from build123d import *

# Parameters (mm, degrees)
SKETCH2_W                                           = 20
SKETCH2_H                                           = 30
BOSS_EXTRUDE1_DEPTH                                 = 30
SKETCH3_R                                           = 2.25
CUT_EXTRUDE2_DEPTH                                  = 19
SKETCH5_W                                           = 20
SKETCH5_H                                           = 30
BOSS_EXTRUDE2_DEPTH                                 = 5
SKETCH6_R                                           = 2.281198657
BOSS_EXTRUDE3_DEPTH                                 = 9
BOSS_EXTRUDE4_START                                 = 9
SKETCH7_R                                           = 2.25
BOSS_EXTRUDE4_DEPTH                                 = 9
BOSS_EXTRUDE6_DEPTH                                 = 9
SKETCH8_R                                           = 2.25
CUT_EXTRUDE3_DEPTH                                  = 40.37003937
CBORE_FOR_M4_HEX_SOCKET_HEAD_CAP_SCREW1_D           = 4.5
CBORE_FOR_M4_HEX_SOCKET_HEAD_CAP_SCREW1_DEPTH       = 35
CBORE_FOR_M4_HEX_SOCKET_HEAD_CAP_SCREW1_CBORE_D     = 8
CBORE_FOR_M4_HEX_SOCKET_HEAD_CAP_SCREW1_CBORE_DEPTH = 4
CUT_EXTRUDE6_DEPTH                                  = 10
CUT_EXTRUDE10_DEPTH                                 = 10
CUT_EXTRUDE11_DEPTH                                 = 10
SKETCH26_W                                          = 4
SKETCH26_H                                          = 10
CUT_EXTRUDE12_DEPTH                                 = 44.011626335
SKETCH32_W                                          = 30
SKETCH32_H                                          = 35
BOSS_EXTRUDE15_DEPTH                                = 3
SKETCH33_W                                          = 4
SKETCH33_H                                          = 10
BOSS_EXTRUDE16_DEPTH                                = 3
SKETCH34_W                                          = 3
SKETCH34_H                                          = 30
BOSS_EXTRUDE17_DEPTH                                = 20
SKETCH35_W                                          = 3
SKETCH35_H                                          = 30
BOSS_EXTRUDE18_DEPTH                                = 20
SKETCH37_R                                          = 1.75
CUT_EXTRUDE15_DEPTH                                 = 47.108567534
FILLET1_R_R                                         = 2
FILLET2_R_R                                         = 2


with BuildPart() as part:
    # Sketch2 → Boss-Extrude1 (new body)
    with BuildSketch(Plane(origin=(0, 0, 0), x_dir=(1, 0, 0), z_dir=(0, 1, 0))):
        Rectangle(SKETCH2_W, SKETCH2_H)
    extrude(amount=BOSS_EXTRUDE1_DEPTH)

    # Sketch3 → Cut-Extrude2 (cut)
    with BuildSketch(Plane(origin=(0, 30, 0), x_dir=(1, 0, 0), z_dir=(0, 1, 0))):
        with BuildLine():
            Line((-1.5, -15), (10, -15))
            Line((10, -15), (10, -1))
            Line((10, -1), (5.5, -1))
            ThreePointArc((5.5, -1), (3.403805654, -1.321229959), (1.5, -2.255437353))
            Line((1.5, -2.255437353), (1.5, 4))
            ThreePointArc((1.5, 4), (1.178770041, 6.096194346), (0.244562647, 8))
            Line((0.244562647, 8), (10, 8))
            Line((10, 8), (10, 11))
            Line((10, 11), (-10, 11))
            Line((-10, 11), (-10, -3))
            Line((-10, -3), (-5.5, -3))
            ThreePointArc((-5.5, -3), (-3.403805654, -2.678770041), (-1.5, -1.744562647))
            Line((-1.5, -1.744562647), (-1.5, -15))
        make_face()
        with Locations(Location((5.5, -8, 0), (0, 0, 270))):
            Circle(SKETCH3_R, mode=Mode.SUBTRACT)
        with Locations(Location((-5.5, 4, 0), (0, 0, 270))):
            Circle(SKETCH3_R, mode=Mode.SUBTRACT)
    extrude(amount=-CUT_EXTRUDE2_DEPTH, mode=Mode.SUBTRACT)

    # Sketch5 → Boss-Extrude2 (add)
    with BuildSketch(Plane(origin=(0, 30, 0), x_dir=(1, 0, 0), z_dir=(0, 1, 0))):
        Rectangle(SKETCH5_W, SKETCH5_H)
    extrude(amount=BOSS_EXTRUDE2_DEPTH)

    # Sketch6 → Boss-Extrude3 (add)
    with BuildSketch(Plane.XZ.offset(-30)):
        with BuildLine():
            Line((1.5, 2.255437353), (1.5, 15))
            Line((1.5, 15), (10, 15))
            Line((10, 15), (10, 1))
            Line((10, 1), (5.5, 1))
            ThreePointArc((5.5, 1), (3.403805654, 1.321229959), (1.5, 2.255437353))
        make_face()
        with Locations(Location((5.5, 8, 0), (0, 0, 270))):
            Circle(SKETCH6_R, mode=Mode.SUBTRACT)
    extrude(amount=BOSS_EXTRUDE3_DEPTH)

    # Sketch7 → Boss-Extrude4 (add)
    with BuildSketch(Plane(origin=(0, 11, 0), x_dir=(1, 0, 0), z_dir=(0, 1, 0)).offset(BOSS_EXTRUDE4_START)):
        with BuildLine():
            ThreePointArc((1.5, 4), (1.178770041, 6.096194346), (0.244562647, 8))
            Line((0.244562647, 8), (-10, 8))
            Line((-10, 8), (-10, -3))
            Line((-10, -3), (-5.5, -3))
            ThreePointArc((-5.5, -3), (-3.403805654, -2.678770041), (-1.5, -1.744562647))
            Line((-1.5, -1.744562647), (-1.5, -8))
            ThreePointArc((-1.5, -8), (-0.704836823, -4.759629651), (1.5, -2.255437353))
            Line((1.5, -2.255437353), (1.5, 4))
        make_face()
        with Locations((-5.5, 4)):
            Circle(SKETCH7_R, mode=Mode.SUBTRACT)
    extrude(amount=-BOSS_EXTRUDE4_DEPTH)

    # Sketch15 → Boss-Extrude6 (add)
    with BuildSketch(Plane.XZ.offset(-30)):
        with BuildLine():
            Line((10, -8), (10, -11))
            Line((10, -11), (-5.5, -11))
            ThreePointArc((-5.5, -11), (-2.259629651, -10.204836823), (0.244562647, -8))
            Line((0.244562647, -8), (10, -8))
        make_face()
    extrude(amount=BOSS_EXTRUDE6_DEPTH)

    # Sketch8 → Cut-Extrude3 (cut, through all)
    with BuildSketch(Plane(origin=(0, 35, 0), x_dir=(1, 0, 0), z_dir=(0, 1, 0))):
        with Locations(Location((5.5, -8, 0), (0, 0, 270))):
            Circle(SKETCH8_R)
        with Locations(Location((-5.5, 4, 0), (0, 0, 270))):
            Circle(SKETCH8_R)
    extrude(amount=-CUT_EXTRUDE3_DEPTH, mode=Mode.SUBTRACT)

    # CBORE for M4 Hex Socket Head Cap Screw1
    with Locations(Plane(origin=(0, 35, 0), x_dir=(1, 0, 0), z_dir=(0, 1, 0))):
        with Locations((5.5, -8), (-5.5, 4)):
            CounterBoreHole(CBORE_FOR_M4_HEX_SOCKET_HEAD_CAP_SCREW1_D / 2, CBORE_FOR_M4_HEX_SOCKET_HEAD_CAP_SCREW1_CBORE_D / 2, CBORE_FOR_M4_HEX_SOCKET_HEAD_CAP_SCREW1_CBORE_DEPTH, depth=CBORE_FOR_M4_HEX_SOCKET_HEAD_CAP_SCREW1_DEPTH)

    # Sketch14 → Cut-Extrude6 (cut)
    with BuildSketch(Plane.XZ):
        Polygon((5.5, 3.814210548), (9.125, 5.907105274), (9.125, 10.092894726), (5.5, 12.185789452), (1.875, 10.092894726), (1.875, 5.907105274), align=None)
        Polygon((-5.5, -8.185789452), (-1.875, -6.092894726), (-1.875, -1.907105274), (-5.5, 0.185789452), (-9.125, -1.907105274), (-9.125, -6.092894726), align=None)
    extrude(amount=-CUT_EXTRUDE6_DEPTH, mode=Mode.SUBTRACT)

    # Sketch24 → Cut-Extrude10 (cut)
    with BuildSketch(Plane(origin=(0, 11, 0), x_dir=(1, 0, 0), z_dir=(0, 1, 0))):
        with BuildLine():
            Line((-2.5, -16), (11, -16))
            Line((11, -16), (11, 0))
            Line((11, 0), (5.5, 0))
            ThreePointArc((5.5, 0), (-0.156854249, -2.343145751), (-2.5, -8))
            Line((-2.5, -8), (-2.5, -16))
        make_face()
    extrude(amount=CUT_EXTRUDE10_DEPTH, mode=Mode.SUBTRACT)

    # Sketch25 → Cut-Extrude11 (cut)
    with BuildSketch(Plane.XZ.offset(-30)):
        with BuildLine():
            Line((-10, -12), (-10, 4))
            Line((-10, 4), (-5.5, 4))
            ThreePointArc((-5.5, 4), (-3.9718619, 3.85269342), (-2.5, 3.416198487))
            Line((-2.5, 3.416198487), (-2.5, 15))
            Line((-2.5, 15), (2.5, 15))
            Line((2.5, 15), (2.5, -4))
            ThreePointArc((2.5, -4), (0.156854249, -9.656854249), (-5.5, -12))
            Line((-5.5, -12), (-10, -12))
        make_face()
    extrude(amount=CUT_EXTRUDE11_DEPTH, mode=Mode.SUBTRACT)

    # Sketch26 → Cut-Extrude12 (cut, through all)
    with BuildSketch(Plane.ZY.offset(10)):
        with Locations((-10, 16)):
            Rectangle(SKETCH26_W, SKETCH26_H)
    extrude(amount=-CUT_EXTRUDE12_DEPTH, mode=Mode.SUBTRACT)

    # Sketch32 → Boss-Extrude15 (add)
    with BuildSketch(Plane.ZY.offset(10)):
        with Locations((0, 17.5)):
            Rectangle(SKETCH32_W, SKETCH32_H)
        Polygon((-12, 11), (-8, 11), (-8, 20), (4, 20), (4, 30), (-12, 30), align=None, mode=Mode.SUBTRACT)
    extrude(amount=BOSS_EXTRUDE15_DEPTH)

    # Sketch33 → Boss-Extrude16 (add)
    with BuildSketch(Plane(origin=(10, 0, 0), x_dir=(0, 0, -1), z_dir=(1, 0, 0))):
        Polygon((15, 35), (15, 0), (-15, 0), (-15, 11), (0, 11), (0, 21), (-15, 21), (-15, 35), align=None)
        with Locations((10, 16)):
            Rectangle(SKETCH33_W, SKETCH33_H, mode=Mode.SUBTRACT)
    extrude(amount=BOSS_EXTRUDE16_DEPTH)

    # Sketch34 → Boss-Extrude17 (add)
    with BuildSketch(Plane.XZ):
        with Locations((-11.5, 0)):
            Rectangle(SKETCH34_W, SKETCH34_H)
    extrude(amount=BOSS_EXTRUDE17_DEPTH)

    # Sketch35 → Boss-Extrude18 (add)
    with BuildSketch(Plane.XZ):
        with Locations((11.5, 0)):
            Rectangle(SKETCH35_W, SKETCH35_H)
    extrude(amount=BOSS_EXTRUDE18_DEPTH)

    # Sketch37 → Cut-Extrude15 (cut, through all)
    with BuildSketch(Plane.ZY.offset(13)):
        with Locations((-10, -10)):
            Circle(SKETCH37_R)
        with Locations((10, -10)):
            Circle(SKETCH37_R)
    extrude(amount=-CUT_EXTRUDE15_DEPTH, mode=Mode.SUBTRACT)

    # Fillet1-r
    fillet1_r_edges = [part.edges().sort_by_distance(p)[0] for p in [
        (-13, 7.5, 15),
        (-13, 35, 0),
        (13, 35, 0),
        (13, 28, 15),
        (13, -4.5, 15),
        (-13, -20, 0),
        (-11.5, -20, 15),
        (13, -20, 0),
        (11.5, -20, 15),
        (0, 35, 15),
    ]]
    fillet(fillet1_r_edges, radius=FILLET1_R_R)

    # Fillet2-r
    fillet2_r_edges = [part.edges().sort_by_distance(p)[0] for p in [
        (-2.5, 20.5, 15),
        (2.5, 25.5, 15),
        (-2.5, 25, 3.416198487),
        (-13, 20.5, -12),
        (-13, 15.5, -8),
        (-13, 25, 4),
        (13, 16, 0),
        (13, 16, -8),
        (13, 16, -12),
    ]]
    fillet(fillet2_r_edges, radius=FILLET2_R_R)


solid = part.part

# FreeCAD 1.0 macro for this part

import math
import FreeCAD as App
import Part
import Sketcher

V = App.Vector
Q = App.Units.Quantity


def edges_at(feature, points):
    """Names of the edges that pass closest to the given points."""
    edges = feature.Shape.Edges
    near = lambda p: min(range(len(edges)), key=lambda i: edges[i].distToShape(Part.Vertex(*p))[0])
    return sorted({f"Edge{near(p) + 1}" for p in points})

doc = App.newDocument("Part")
body = doc.addObject("PartDesign::Body", "Body")

# Sketch on XZ plane
sketch1 = body.newObject("Sketcher::SketchObject", "Sketch")
sketch1.AttachmentSupport = (doc.getObject("XZ_Plane"), [""])
sketch1.MapMode = "FlatFace"
sketch1.addGeometry(Part.LineSegment(V(-10, -15, 0), V(-10, 15, 0)), False)
sketch1.addGeometry(Part.LineSegment(V(-10, 15, 0), V(10, 15, 0)), False)
sketch1.addGeometry(Part.LineSegment(V(10, 15, 0), V(10, -15, 0)), False)
sketch1.addGeometry(Part.LineSegment(V(10, -15, 0), V(-10, -15, 0)), False)
sketch1.addConstraint(Sketcher.Constraint("Coincident", 0, 2, 1, 1))
sketch1.addConstraint(Sketcher.Constraint("Coincident", 1, 2, 2, 1))
sketch1.addConstraint(Sketcher.Constraint("Coincident", 2, 2, 3, 1))
sketch1.addConstraint(Sketcher.Constraint("Coincident", 3, 2, 0, 1))
sketch1.addConstraint(Sketcher.Constraint("Vertical", 0))
sketch1.addConstraint(Sketcher.Constraint("Horizontal", 1))
sketch1.addConstraint(Sketcher.Constraint("Vertical", 2))
sketch1.addConstraint(Sketcher.Constraint("Horizontal", 3))
sketch1.addConstraint(Sketcher.Constraint("Symmetric", 0, 2, 2, 2, -1, 1))
sketch1.addConstraint(Sketcher.Constraint("DistanceX", 1, 1, 1, 2, Q("20 mm")))
sketch1.addConstraint(Sketcher.Constraint("DistanceY", 0, 1, 0, 2, Q("30 mm")))
pad1 = body.newObject("PartDesign::Pad", "Pad")
pad1.Profile = sketch1
pad1.Length = 30
pad1.Reversed = True

# Sketch on XZ plane
sketch2 = body.newObject("Sketcher::SketchObject", "Sketch001")
sketch2.AttachmentSupport = (doc.getObject("XZ_Plane"), [""])
sketch2.MapMode = "FlatFace"
sketch2.AttachmentOffset = App.Placement(V(0, 0, -30), App.Rotation())
sketch2.addGeometry(Part.LineSegment(V(-1.5, 15, 0), V(10, 15, 0)), False)
sketch2.addGeometry(Part.LineSegment(V(10, 15, 0), V(10, 1, 0)), False)
sketch2.addGeometry(Part.LineSegment(V(10, 1, 0), V(5.5, 1, 0)), False)
sketch2.addGeometry(Part.ArcOfCircle(Part.Circle(V(5.5, 8, 0), V(0, 0, 1), 7), math.radians(-125), math.radians(-90)), False)
sketch2.addGeometry(Part.LineSegment(V(1.5, 2.3, 0), V(1.5, -4, 0)), False)
sketch2.addGeometry(Part.ArcOfCircle(Part.Circle(V(-5.5, -4, 0), V(0, 0, 1), 7), math.radians(-35), math.radians(0)), False)
sketch2.addGeometry(Part.LineSegment(V(0.2, -8, 0), V(10, -8, 0)), False)
sketch2.addGeometry(Part.LineSegment(V(10, -8, 0), V(10, -11, 0)), False)
sketch2.addGeometry(Part.LineSegment(V(10, -11, 0), V(-10, -11, 0)), False)
sketch2.addGeometry(Part.LineSegment(V(-10, -11, 0), V(-10, 3, 0)), False)
sketch2.addGeometry(Part.LineSegment(V(-10, 3, 0), V(-5.5, 3, 0)), False)
sketch2.addGeometry(Part.ArcOfCircle(Part.Circle(V(-5.5, -4, 0), V(0, 0, 1), 7), math.radians(55), math.radians(90)), False)
sketch2.addGeometry(Part.LineSegment(V(-1.5, 1.7, 0), V(-1.5, 15, 0)), False)
sketch2.addGeometry(Part.Circle(V(5.5, 8, 0), V(0, 0, 1), 2.2), False)
sketch2.addGeometry(Part.Circle(V(-5.5, -4, 0), V(0, 0, 1), 2.2), False)
sketch2.addConstraint(Sketcher.Constraint("Coincident", 0, 2, 1, 1))
sketch2.addConstraint(Sketcher.Constraint("Coincident", 1, 2, 2, 1))
sketch2.addConstraint(Sketcher.Constraint("Tangent", 2, 2, 3, 2))
sketch2.addConstraint(Sketcher.Constraint("Coincident", 3, 1, 4, 1))
sketch2.addConstraint(Sketcher.Constraint("Tangent", 4, 2, 5, 2))
sketch2.addConstraint(Sketcher.Constraint("Coincident", 5, 1, 6, 1))
sketch2.addConstraint(Sketcher.Constraint("Coincident", 6, 2, 7, 1))
sketch2.addConstraint(Sketcher.Constraint("Coincident", 7, 2, 8, 1))
sketch2.addConstraint(Sketcher.Constraint("Coincident", 8, 2, 9, 1))
sketch2.addConstraint(Sketcher.Constraint("Coincident", 9, 2, 10, 1))
sketch2.addConstraint(Sketcher.Constraint("Tangent", 10, 2, 11, 2))
sketch2.addConstraint(Sketcher.Constraint("Coincident", 11, 1, 12, 1))
sketch2.addConstraint(Sketcher.Constraint("Coincident", 12, 2, 0, 1))
sketch2.addConstraint(Sketcher.Constraint("Horizontal", 0))
sketch2.addConstraint(Sketcher.Constraint("Vertical", 1))
sketch2.addConstraint(Sketcher.Constraint("Horizontal", 2))
sketch2.addConstraint(Sketcher.Constraint("Vertical", 4))
sketch2.addConstraint(Sketcher.Constraint("Horizontal", 6))
sketch2.addConstraint(Sketcher.Constraint("Vertical", 7))
sketch2.addConstraint(Sketcher.Constraint("Horizontal", 8))
sketch2.addConstraint(Sketcher.Constraint("Vertical", 9))
sketch2.addConstraint(Sketcher.Constraint("Horizontal", 10))
sketch2.addConstraint(Sketcher.Constraint("Vertical", 12))
sketch2.addConstraint(Sketcher.Constraint("Coincident", 11, 3, 5, 3))
sketch2.addConstraint(Sketcher.Constraint("Coincident", 13, 3, 3, 3))
sketch2.addConstraint(Sketcher.Constraint("Coincident", 14, 3, 5, 3))
sketch2.addConstraint(Sketcher.Constraint("Equal", 3, 5))
sketch2.addConstraint(Sketcher.Constraint("Equal", 5, 11))
sketch2.addConstraint(Sketcher.Constraint("Equal", 13, 14))
sketch2.addConstraint(Sketcher.Constraint("Vertical", 1, 2, 6, 2))
sketch2.addConstraint(Sketcher.Constraint("Equal", 2, 10))
sketch2.addConstraint(Sketcher.Constraint("Equal", 1, 9))
sketch2.addConstraint(Sketcher.Constraint("Radius", 3, Q("7 mm")))
sketch2.addConstraint(Sketcher.Constraint("Diameter", 13, Q("4.5 mm")))
sketch2.addConstraint(Sketcher.Constraint("DistanceX", 8, 2, 8, 1, Q("20 mm")))
sketch2.addConstraint(Sketcher.Constraint("DistanceY", 1, 2, 1, 1, Q("14 mm")))
sketch2.addConstraint(Sketcher.Constraint("DistanceY", 7, 2, 7, 1, Q("3 mm")))
sketch2.addConstraint(Sketcher.Constraint("DistanceX", 0, 1, 0, 2, Q("11.5 mm")))
sketch2.addConstraint(Sketcher.Constraint("DistanceX", 2, 2, 2, 1, Q("4.5 mm")))
sketch2.addConstraint(Sketcher.Constraint("DistanceY", -1, 1, 3, 3, Q("8 mm")))
sketch2.addConstraint(Sketcher.Constraint("DistanceY", 5, 3, -1, 1, Q("4 mm")))
sketch2.addConstraint(Sketcher.Constraint("DistanceX", -1, 1, 0, 2, Q("10 mm")))
pocket1 = body.newObject("PartDesign::Pocket", "Pocket")
pocket1.Profile = sketch2
pocket1.Length = 19
pocket1.Reversed = True

# Sketch on XZ plane
sketch3 = body.newObject("Sketcher::SketchObject", "Sketch002")
sketch3.AttachmentSupport = (doc.getObject("XZ_Plane"), [""])
sketch3.MapMode = "FlatFace"
sketch3.AttachmentOffset = App.Placement(V(0, 0, -30), App.Rotation())
sketch3.addGeometry(Part.LineSegment(V(-10, -15, 0), V(-10, 15, 0)), False)
sketch3.addGeometry(Part.LineSegment(V(-10, 15, 0), V(10, 15, 0)), False)
sketch3.addGeometry(Part.LineSegment(V(10, 15, 0), V(10, -15, 0)), False)
sketch3.addGeometry(Part.LineSegment(V(10, -15, 0), V(-10, -15, 0)), False)
sketch3.addConstraint(Sketcher.Constraint("Coincident", 0, 2, 1, 1))
sketch3.addConstraint(Sketcher.Constraint("Coincident", 1, 2, 2, 1))
sketch3.addConstraint(Sketcher.Constraint("Coincident", 2, 2, 3, 1))
sketch3.addConstraint(Sketcher.Constraint("Coincident", 3, 2, 0, 1))
sketch3.addConstraint(Sketcher.Constraint("Vertical", 0))
sketch3.addConstraint(Sketcher.Constraint("Horizontal", 1))
sketch3.addConstraint(Sketcher.Constraint("Vertical", 2))
sketch3.addConstraint(Sketcher.Constraint("Horizontal", 3))
sketch3.addConstraint(Sketcher.Constraint("Symmetric", 0, 2, 2, 2, -1, 1))
sketch3.addConstraint(Sketcher.Constraint("DistanceX", 1, 1, 1, 2, Q("20 mm")))
sketch3.addConstraint(Sketcher.Constraint("DistanceY", 0, 1, 0, 2, Q("30 mm")))
pad2 = body.newObject("PartDesign::Pad", "Pad001")
pad2.Profile = sketch3
pad2.Length = 5
pad2.Reversed = True

# Sketch on XZ plane
sketch4 = body.newObject("Sketcher::SketchObject", "Sketch003")
sketch4.AttachmentSupport = (doc.getObject("XZ_Plane"), [""])
sketch4.MapMode = "FlatFace"
sketch4.AttachmentOffset = App.Placement(V(0, 0, -30), App.Rotation())
sketch4.addGeometry(Part.LineSegment(V(1.5, 15, 0), V(1.5, 2.3, 0)), False)
sketch4.addGeometry(Part.ArcOfCircle(Part.Circle(V(5.5, 8, 0), V(0, 0, 1), 7), math.radians(-125), math.radians(-90)), False)
sketch4.addGeometry(Part.LineSegment(V(5.5, 1, 0), V(10, 1, 0)), False)
sketch4.addGeometry(Part.LineSegment(V(10, 1, 0), V(10, 15, 0)), False)
sketch4.addGeometry(Part.LineSegment(V(10, 15, 0), V(1.5, 15, 0)), False)
sketch4.addGeometry(Part.Circle(V(5.5, 8, 0), V(0, 0, 1), 2.3), False)
sketch4.addConstraint(Sketcher.Constraint("Coincident", 0, 2, 1, 1))
sketch4.addConstraint(Sketcher.Constraint("Tangent", 1, 2, 2, 1))
sketch4.addConstraint(Sketcher.Constraint("Coincident", 2, 2, 3, 1))
sketch4.addConstraint(Sketcher.Constraint("Coincident", 3, 2, 4, 1))
sketch4.addConstraint(Sketcher.Constraint("Coincident", 4, 2, 0, 1))
sketch4.addConstraint(Sketcher.Constraint("Vertical", 0))
sketch4.addConstraint(Sketcher.Constraint("Horizontal", 2))
sketch4.addConstraint(Sketcher.Constraint("Vertical", 3))
sketch4.addConstraint(Sketcher.Constraint("Horizontal", 4))
sketch4.addConstraint(Sketcher.Constraint("Coincident", 5, 3, 1, 3))
sketch4.addConstraint(Sketcher.Constraint("Radius", 1, Q("7 mm")))
sketch4.addConstraint(Sketcher.Constraint("DistanceY", 3, 1, 3, 2, Q("14 mm")))
sketch4.addConstraint(Sketcher.Constraint("DistanceX", 2, 1, 2, 2, Q("4.5 mm")))
sketch4.addConstraint(Sketcher.Constraint("DistanceX", 4, 2, 4, 1, Q("8.5 mm")))
sketch4.addConstraint(Sketcher.Constraint("DistanceY", -1, 1, 1, 3, Q("8 mm")))
sketch4.addConstraint(Sketcher.Constraint("DistanceX", -1, 1, 2, 2, Q("10 mm")))
sketch4.addConstraint(Sketcher.Constraint("Diameter", 5, Q("4.562397 mm")))
pad3 = body.newObject("PartDesign::Pad", "Pad002")
pad3.Profile = sketch4
pad3.Length = 9

# Sketch on XZ plane
sketch5 = body.newObject("Sketcher::SketchObject", "Sketch004")
sketch5.AttachmentSupport = (doc.getObject("XZ_Plane"), [""])
sketch5.MapMode = "FlatFace"
sketch5.AttachmentOffset = App.Placement(V(0, 0, -20), App.Rotation())
sketch5.addGeometry(Part.ArcOfCircle(Part.Circle(V(-5.5, -4, 0), V(0, 0, 1), 7), math.radians(-35), math.radians(0)), False)
sketch5.addGeometry(Part.LineSegment(V(0.2, -8, 0), V(-10, -8, 0)), False)
sketch5.addGeometry(Part.LineSegment(V(-10, -8, 0), V(-10, 3, 0)), False)
sketch5.addGeometry(Part.LineSegment(V(-10, 3, 0), V(-5.5, 3, 0)), False)
sketch5.addGeometry(Part.ArcOfCircle(Part.Circle(V(-5.5, -4, 0), V(0, 0, 1), 7), math.radians(55), math.radians(90)), False)
sketch5.addGeometry(Part.LineSegment(V(-1.5, 1.7, 0), V(-1.5, 8, 0)), False)
sketch5.addGeometry(Part.ArcOfCircle(Part.Circle(V(5.5, 8, 0), V(0, 0, 1), 7), math.radians(-180), math.radians(-125)), False)
sketch5.addGeometry(Part.LineSegment(V(1.5, 2.3, 0), V(1.5, -4, 0)), False)
sketch5.addGeometry(Part.Circle(V(-5.5, -4, 0), V(0, 0, 1), 2.2), False)
sketch5.addConstraint(Sketcher.Constraint("Coincident", 0, 1, 1, 1))
sketch5.addConstraint(Sketcher.Constraint("Coincident", 1, 2, 2, 1))
sketch5.addConstraint(Sketcher.Constraint("Coincident", 2, 2, 3, 1))
sketch5.addConstraint(Sketcher.Constraint("Tangent", 3, 2, 4, 2))
sketch5.addConstraint(Sketcher.Constraint("Coincident", 4, 1, 5, 1))
sketch5.addConstraint(Sketcher.Constraint("Tangent", 5, 2, 6, 1))
sketch5.addConstraint(Sketcher.Constraint("Coincident", 6, 2, 7, 1))
sketch5.addConstraint(Sketcher.Constraint("Tangent", 7, 2, 0, 2))
sketch5.addConstraint(Sketcher.Constraint("Horizontal", 1))
sketch5.addConstraint(Sketcher.Constraint("Vertical", 2))
sketch5.addConstraint(Sketcher.Constraint("Horizontal", 3))
sketch5.addConstraint(Sketcher.Constraint("Vertical", 5))
sketch5.addConstraint(Sketcher.Constraint("Vertical", 7))
sketch5.addConstraint(Sketcher.Constraint("Coincident", 4, 3, 0, 3))
sketch5.addConstraint(Sketcher.Constraint("Coincident", 8, 3, 0, 3))
sketch5.addConstraint(Sketcher.Constraint("Equal", 0, 4))
sketch5.addConstraint(Sketcher.Constraint("Equal", 4, 6))
sketch5.addConstraint(Sketcher.Constraint("Radius", 0, Q("7 mm")))
sketch5.addConstraint(Sketcher.Constraint("Diameter", 8, Q("4.5 mm")))
sketch5.addConstraint(Sketcher.Constraint("DistanceY", 2, 1, 2, 2, Q("11 mm")))
sketch5.addConstraint(Sketcher.Constraint("DistanceX", 3, 1, 3, 2, Q("4.5 mm")))
sketch5.addConstraint(Sketcher.Constraint("DistanceY", 0, 3, -1, 1, Q("4 mm")))
sketch5.addConstraint(Sketcher.Constraint("DistanceY", -1, 1, 6, 3, Q("8 mm")))
sketch5.addConstraint(Sketcher.Constraint("DistanceX", 1, 2, -1, 1, Q("10 mm")))
sketch5.addConstraint(Sketcher.Constraint("DistanceX", 0, 3, 6, 3, Q("11 mm")))
pad4 = body.newObject("PartDesign::Pad", "Pad003")
pad4.Profile = sketch5
pad4.Length = 9

# Sketch on XZ plane
sketch6 = body.newObject("Sketcher::SketchObject", "Sketch005")
sketch6.AttachmentSupport = (doc.getObject("XZ_Plane"), [""])
sketch6.MapMode = "FlatFace"
sketch6.AttachmentOffset = App.Placement(V(0, 0, -30), App.Rotation())
sketch6.addGeometry(Part.LineSegment(V(10, -11, 0), V(10, -8, 0)), False)
sketch6.addGeometry(Part.LineSegment(V(10, -8, 0), V(0.2, -8, 0)), False)
sketch6.addGeometry(Part.ArcOfCircle(Part.Circle(V(-5.5, -4, 0), V(0, 0, 1), 7), math.radians(-90), math.radians(-35)), False)
sketch6.addGeometry(Part.LineSegment(V(-5.5, -11, 0), V(10, -11, 0)), False)
sketch6.addConstraint(Sketcher.Constraint("Coincident", 0, 2, 1, 1))
sketch6.addConstraint(Sketcher.Constraint("Coincident", 1, 2, 2, 2))
sketch6.addConstraint(Sketcher.Constraint("Tangent", 2, 1, 3, 1))
sketch6.addConstraint(Sketcher.Constraint("Coincident", 3, 2, 0, 1))
sketch6.addConstraint(Sketcher.Constraint("Vertical", 0))
sketch6.addConstraint(Sketcher.Constraint("Horizontal", 1))
sketch6.addConstraint(Sketcher.Constraint("Horizontal", 3))
sketch6.addConstraint(Sketcher.Constraint("Radius", 2, Q("7 mm")))
sketch6.addConstraint(Sketcher.Constraint("DistanceY", 0, 1, 0, 2, Q("3 mm")))
sketch6.addConstraint(Sketcher.Constraint("DistanceX", 3, 1, 3, 2, Q("15.5 mm")))
sketch6.addConstraint(Sketcher.Constraint("DistanceY", 2, 3, -1, 1, Q("4 mm")))
sketch6.addConstraint(Sketcher.Constraint("DistanceX", -1, 1, 0, 2, Q("10 mm")))
pad5 = body.newObject("PartDesign::Pad", "Pad004")
pad5.Profile = sketch6
pad5.Length = 9

# Sketch on XZ plane
sketch7 = body.newObject("Sketcher::SketchObject", "Sketch006")
sketch7.AttachmentSupport = (doc.getObject("XZ_Plane"), [""])
sketch7.MapMode = "FlatFace"
sketch7.AttachmentOffset = App.Placement(V(0, 0, -35), App.Rotation())
sketch7.addGeometry(Part.Circle(V(5.5, 8, 0), V(0, 0, 1), 2.2), False)
sketch7.addGeometry(Part.Circle(V(-5.5, -4, 0), V(0, 0, 1), 2.2), False)
sketch7.addConstraint(Sketcher.Constraint("Equal", 0, 1))
sketch7.addConstraint(Sketcher.Constraint("Diameter", 0, Q("4.5 mm")))
sketch7.addConstraint(Sketcher.Constraint("DistanceY", -1, 1, 0, 3, Q("8 mm")))
sketch7.addConstraint(Sketcher.Constraint("DistanceY", 1, 3, -1, 1, Q("4 mm")))
sketch7.addConstraint(Sketcher.Constraint("DistanceX", 1, 3, 0, 3, Q("11 mm")))
sketch7.addConstraint(Sketcher.Constraint("DistanceX", -1, 1, 0, 3, Q("5.5 mm")))
pocket2 = body.newObject("PartDesign::Pocket", "Pocket001")
pocket2.Profile = sketch7
pocket2.Type = "ThroughAll"
pocket2.Reversed = True

# Sketch on XZ plane
sketch8 = body.newObject("Sketcher::SketchObject", "Sketch007")
sketch8.AttachmentSupport = (doc.getObject("XZ_Plane"), [""])
sketch8.MapMode = "FlatFace"
sketch8.AttachmentOffset = App.Placement(V(0, 0, -35), App.Rotation())
sketch8.addGeometry(Part.Circle(V(5.5, 8, 0), V(0, 0, 1), 2.2), False)
sketch8.addGeometry(Part.Circle(V(-5.5, -4, 0), V(0, 0, 1), 2.2), False)
sketch8.addConstraint(Sketcher.Constraint("Equal", 0, 1))
sketch8.addConstraint(Sketcher.Constraint("Diameter", 0, Q("4.5 mm")))
sketch8.addConstraint(Sketcher.Constraint("DistanceY", -1, 1, 0, 3, Q("8 mm")))
sketch8.addConstraint(Sketcher.Constraint("DistanceY", 1, 3, -1, 1, Q("4 mm")))
sketch8.addConstraint(Sketcher.Constraint("DistanceX", 1, 3, 0, 3, Q("11 mm")))
sketch8.addConstraint(Sketcher.Constraint("DistanceX", -1, 1, 0, 3, Q("5.5 mm")))
doc.recompute()
hole = body.newObject("PartDesign::Hole", "Hole")
hole.Profile = sketch8
hole.ThreadType = "None"
hole.Diameter = 4.5
hole.DepthType = "Dimension"
hole.Depth = 35
hole.DrillPoint = "Flat"
hole.HoleCutType = "Counterbore"
hole.HoleCutDiameter = 8
hole.HoleCutDepth = 4
hole.Reversed = True

# Sketch on XZ plane
sketch9 = body.newObject("Sketcher::SketchObject", "Sketch008")
sketch9.AttachmentSupport = (doc.getObject("XZ_Plane"), [""])
sketch9.MapMode = "FlatFace"
sketch9.addGeometry(Part.LineSegment(V(5.5, 3.8, 0), V(9.1, 5.9, 0)), False)
sketch9.addGeometry(Part.LineSegment(V(9.1, 5.9, 0), V(9.1, 10.1, 0)), False)
sketch9.addGeometry(Part.LineSegment(V(9.1, 10.1, 0), V(5.5, 12.2, 0)), False)
sketch9.addGeometry(Part.LineSegment(V(5.5, 12.2, 0), V(1.9, 10.1, 0)), False)
sketch9.addGeometry(Part.LineSegment(V(1.9, 10.1, 0), V(1.9, 5.9, 0)), False)
sketch9.addGeometry(Part.LineSegment(V(1.9, 5.9, 0), V(5.5, 3.8, 0)), False)
sketch9.addGeometry(Part.LineSegment(V(-5.5, -8.2, 0), V(-1.9, -6.1, 0)), False)
sketch9.addGeometry(Part.LineSegment(V(-1.9, -6.1, 0), V(-1.9, -1.9, 0)), False)
sketch9.addGeometry(Part.LineSegment(V(-1.9, -1.9, 0), V(-5.5, 0.2, 0)), False)
sketch9.addGeometry(Part.LineSegment(V(-5.5, 0.2, 0), V(-9.1, -1.9, 0)), False)
sketch9.addGeometry(Part.LineSegment(V(-9.1, -1.9, 0), V(-9.1, -6.1, 0)), False)
sketch9.addGeometry(Part.LineSegment(V(-9.1, -6.1, 0), V(-5.5, -8.2, 0)), False)
sketch9.addConstraint(Sketcher.Constraint("Coincident", 0, 2, 1, 1))
sketch9.addConstraint(Sketcher.Constraint("Coincident", 1, 2, 2, 1))
sketch9.addConstraint(Sketcher.Constraint("Coincident", 2, 2, 3, 1))
sketch9.addConstraint(Sketcher.Constraint("Coincident", 3, 2, 4, 1))
sketch9.addConstraint(Sketcher.Constraint("Coincident", 4, 2, 5, 1))
sketch9.addConstraint(Sketcher.Constraint("Coincident", 5, 2, 0, 1))
sketch9.addConstraint(Sketcher.Constraint("Coincident", 6, 2, 7, 1))
sketch9.addConstraint(Sketcher.Constraint("Coincident", 7, 2, 8, 1))
sketch9.addConstraint(Sketcher.Constraint("Coincident", 8, 2, 9, 1))
sketch9.addConstraint(Sketcher.Constraint("Coincident", 9, 2, 10, 1))
sketch9.addConstraint(Sketcher.Constraint("Coincident", 10, 2, 11, 1))
sketch9.addConstraint(Sketcher.Constraint("Coincident", 11, 2, 6, 1))
sketch9.addConstraint(Sketcher.Constraint("Vertical", 1))
sketch9.addConstraint(Sketcher.Constraint("Vertical", 4))
sketch9.addConstraint(Sketcher.Constraint("Vertical", 7))
sketch9.addConstraint(Sketcher.Constraint("Vertical", 10))
sketch9.addConstraint(Sketcher.Constraint("Parallel", 0, 3))
sketch9.addConstraint(Sketcher.Constraint("Parallel", 2, 5))
sketch9.addConstraint(Sketcher.Constraint("Parallel", 3, 6))
sketch9.addConstraint(Sketcher.Constraint("Parallel", 5, 8))
sketch9.addConstraint(Sketcher.Constraint("Parallel", 6, 9))
sketch9.addConstraint(Sketcher.Constraint("Parallel", 8, 11))
sketch9.addConstraint(Sketcher.Constraint("Horizontal", 1, 2, 3, 2))
sketch9.addConstraint(Sketcher.Constraint("Horizontal", 0, 2, 4, 2))
sketch9.addConstraint(Sketcher.Constraint("Horizontal", 7, 2, 9, 2))
sketch9.addConstraint(Sketcher.Constraint("Horizontal", 6, 2, 10, 2))
sketch9.addConstraint(Sketcher.Constraint("Vertical", 2, 2, 5, 2))
sketch9.addConstraint(Sketcher.Constraint("Equal", 4, 7))
sketch9.addConstraint(Sketcher.Constraint("Equal", 5, 6))
sketch9.addConstraint(Sketcher.Constraint("Angle", 0, Q("30 deg")))
sketch9.addConstraint(Sketcher.Constraint("DistanceY", 6, 2, 4, 2, Q("12 mm")))
sketch9.addConstraint(Sketcher.Constraint("DistanceX", 6, 2, 0, 2, Q("11 mm")))
sketch9.addConstraint(Sketcher.Constraint("DistanceX", -1, 1, 2, 2, Q("5.5 mm")))
sketch9.addConstraint(Sketcher.Constraint("DistanceX", 3, 2, 1, 2, Q("7.25 mm")))
sketch9.addConstraint(Sketcher.Constraint("DistanceY", 1, 1, 1, 2, Q("4.185789 mm")))
sketch9.addConstraint(Sketcher.Constraint("DistanceY", -1, 1, 2, 2, Q("12.185789 mm")))
pocket3 = body.newObject("PartDesign::Pocket", "Pocket002")
pocket3.Profile = sketch9
pocket3.Length = 10

# Sketch on XZ plane
sketch10 = body.newObject("Sketcher::SketchObject", "Sketch009")
sketch10.AttachmentSupport = (doc.getObject("XZ_Plane"), [""])
sketch10.MapMode = "FlatFace"
sketch10.AttachmentOffset = App.Placement(V(0, 0, -11), App.Rotation())
sketch10.addGeometry(Part.LineSegment(V(-2, 16, 0), V(11, 16, 0)), False)
sketch10.addGeometry(Part.LineSegment(V(11, 16, 0), V(11, 0, 0)), False)
sketch10.addGeometry(Part.LineSegment(V(11, 0, 0), V(6, 0, 0)), False)
sketch10.addGeometry(Part.ArcOfCircle(Part.Circle(V(6, 8, 0), V(0, 0, 1), 8), math.radians(-180), math.radians(-90)), False)
sketch10.addGeometry(Part.LineSegment(V(-2, 8, 0), V(-2, 16, 0)), False)
sketch10.addConstraint(Sketcher.Constraint("Coincident", 0, 2, 1, 1))
sketch10.addConstraint(Sketcher.Constraint("Coincident", 1, 2, 2, 1))
sketch10.addConstraint(Sketcher.Constraint("Tangent", 2, 2, 3, 2))
sketch10.addConstraint(Sketcher.Constraint("Tangent", 3, 1, 4, 1))
sketch10.addConstraint(Sketcher.Constraint("Coincident", 4, 2, 0, 1))
sketch10.addConstraint(Sketcher.Constraint("Horizontal", 0))
sketch10.addConstraint(Sketcher.Constraint("Vertical", 1))
sketch10.addConstraint(Sketcher.Constraint("Horizontal", 2))
sketch10.addConstraint(Sketcher.Constraint("Vertical", 4))
sketch10.addConstraint(Sketcher.Constraint("PointOnObject", 1, 2, -1))
sketch10.addConstraint(Sketcher.Constraint("Radius", 3, Q("8 mm")))
sketch10.addConstraint(Sketcher.Constraint("DistanceY", 1, 2, 1, 1, Q("16 mm")))
sketch10.addConstraint(Sketcher.Constraint("DistanceX", 0, 1, 0, 2, Q("13.5 mm")))
sketch10.addConstraint(Sketcher.Constraint("DistanceX", -1, 1, 0, 2, Q("11 mm")))
pocket4 = body.newObject("PartDesign::Pocket", "Pocket003")
pocket4.Profile = sketch10
pocket4.Length = 10

# Sketch on XZ plane
sketch11 = body.newObject("Sketcher::SketchObject", "Sketch010")
sketch11.AttachmentSupport = (doc.getObject("XZ_Plane"), [""])
sketch11.MapMode = "FlatFace"
sketch11.AttachmentOffset = App.Placement(V(0, 0, -30), App.Rotation())
sketch11.addGeometry(Part.LineSegment(V(-10, 4, 0), V(-10, -12, 0)), False)
sketch11.addGeometry(Part.LineSegment(V(-10, -12, 0), V(-5.5, -12, 0)), False)
sketch11.addGeometry(Part.ArcOfCircle(Part.Circle(V(-5.5, -4, 0), V(0, 0, 1), 8), math.radians(-90), math.radians(0)), False)
sketch11.addGeometry(Part.LineSegment(V(2.5, -4, 0), V(2.5, 15, 0)), False)
sketch11.addGeometry(Part.LineSegment(V(2.5, 15, 0), V(-2.5, 15, 0)), False)
sketch11.addGeometry(Part.LineSegment(V(-2.5, 15, 0), V(-2.5, 3.4, 0)), False)
sketch11.addGeometry(Part.ArcOfCircle(Part.Circle(V(-5.5, -4, 0), V(0, 0, 1), 8), math.radians(68), math.radians(90)), False)
sketch11.addGeometry(Part.LineSegment(V(-5.5, 4, 0), V(-10, 4, 0)), False)
sketch11.addConstraint(Sketcher.Constraint("Coincident", 0, 2, 1, 1))
sketch11.addConstraint(Sketcher.Constraint("Tangent", 1, 2, 2, 1))
sketch11.addConstraint(Sketcher.Constraint("Tangent", 2, 2, 3, 1))
sketch11.addConstraint(Sketcher.Constraint("Coincident", 3, 2, 4, 1))
sketch11.addConstraint(Sketcher.Constraint("Coincident", 4, 2, 5, 1))
sketch11.addConstraint(Sketcher.Constraint("Coincident", 5, 2, 6, 1))
sketch11.addConstraint(Sketcher.Constraint("Tangent", 6, 2, 7, 1))
sketch11.addConstraint(Sketcher.Constraint("Coincident", 7, 2, 0, 1))
sketch11.addConstraint(Sketcher.Constraint("Vertical", 0))
sketch11.addConstraint(Sketcher.Constraint("Horizontal", 1))
sketch11.addConstraint(Sketcher.Constraint("Vertical", 3))
sketch11.addConstraint(Sketcher.Constraint("Horizontal", 4))
sketch11.addConstraint(Sketcher.Constraint("Vertical", 5))
sketch11.addConstraint(Sketcher.Constraint("Horizontal", 7))
sketch11.addConstraint(Sketcher.Constraint("Coincident", 6, 3, 2, 3))
sketch11.addConstraint(Sketcher.Constraint("Equal", 2, 6))
sketch11.addConstraint(Sketcher.Constraint("Radius", 2, Q("8 mm")))
sketch11.addConstraint(Sketcher.Constraint("DistanceX", 4, 2, 4, 1, Q("5 mm")))
sketch11.addConstraint(Sketcher.Constraint("DistanceY", 3, 1, 3, 2, Q("19 mm")))
sketch11.addConstraint(Sketcher.Constraint("DistanceX", 1, 1, 1, 2, Q("4.5 mm")))
sketch11.addConstraint(Sketcher.Constraint("DistanceY", 2, 3, -1, 1, Q("4 mm")))
sketch11.addConstraint(Sketcher.Constraint("DistanceX", 0, 2, -1, 1, Q("10 mm")))
pocket5 = body.newObject("PartDesign::Pocket", "Pocket004")
pocket5.Profile = sketch11
pocket5.Length = 10
pocket5.Reversed = True

# Sketch on YZ plane
sketch12 = body.newObject("Sketcher::SketchObject", "Sketch011")
sketch12.AttachmentSupport = (doc.getObject("YZ_Plane"), [""])
sketch12.MapMode = "FlatFace"
sketch12.AttachmentOffset = App.Placement(V(0, 0, -10), App.Rotation())
sketch12.addGeometry(Part.LineSegment(V(21, -12, 0), V(11, -12, 0)), False)
sketch12.addGeometry(Part.LineSegment(V(11, -12, 0), V(11, -8, 0)), False)
sketch12.addGeometry(Part.LineSegment(V(11, -8, 0), V(21, -8, 0)), False)
sketch12.addGeometry(Part.LineSegment(V(21, -8, 0), V(21, -12, 0)), False)
sketch12.addConstraint(Sketcher.Constraint("Coincident", 0, 2, 1, 1))
sketch12.addConstraint(Sketcher.Constraint("Coincident", 1, 2, 2, 1))
sketch12.addConstraint(Sketcher.Constraint("Coincident", 2, 2, 3, 1))
sketch12.addConstraint(Sketcher.Constraint("Coincident", 3, 2, 0, 1))
sketch12.addConstraint(Sketcher.Constraint("Horizontal", 0))
sketch12.addConstraint(Sketcher.Constraint("Vertical", 1))
sketch12.addConstraint(Sketcher.Constraint("Horizontal", 2))
sketch12.addConstraint(Sketcher.Constraint("Vertical", 3))
sketch12.addConstraint(Sketcher.Constraint("DistanceX", 0, 2, 0, 1, Q("10 mm")))
sketch12.addConstraint(Sketcher.Constraint("DistanceY", 1, 1, 1, 2, Q("4 mm")))
sketch12.addConstraint(Sketcher.Constraint("DistanceX", -1, 1, 0, 2, Q("11 mm")))
sketch12.addConstraint(Sketcher.Constraint("DistanceY", 0, 2, -1, 1, Q("12 mm")))
pocket6 = body.newObject("PartDesign::Pocket", "Pocket005")
pocket6.Profile = sketch12
pocket6.Type = "ThroughAll"
pocket6.Reversed = True

# Sketch on YZ plane
sketch13 = body.newObject("Sketcher::SketchObject", "Sketch012")
sketch13.AttachmentSupport = (doc.getObject("YZ_Plane"), [""])
sketch13.MapMode = "FlatFace"
sketch13.AttachmentOffset = App.Placement(V(0, 0, -10), App.Rotation())
sketch13.addGeometry(Part.LineSegment(V(35, -15, 0), V(0, -15, 0)), False)
sketch13.addGeometry(Part.LineSegment(V(0, -15, 0), V(0, 15, 0)), False)
sketch13.addGeometry(Part.LineSegment(V(0, 15, 0), V(35, 15, 0)), False)
sketch13.addGeometry(Part.LineSegment(V(35, 15, 0), V(35, -15, 0)), False)
sketch13.addGeometry(Part.LineSegment(V(11, -8, 0), V(11, -12, 0)), False)
sketch13.addGeometry(Part.LineSegment(V(11, -12, 0), V(30, -12, 0)), False)
sketch13.addGeometry(Part.LineSegment(V(30, -12, 0), V(30, 4, 0)), False)
sketch13.addGeometry(Part.LineSegment(V(30, 4, 0), V(20, 4, 0)), False)
sketch13.addGeometry(Part.LineSegment(V(20, 4, 0), V(20, -8, 0)), False)
sketch13.addGeometry(Part.LineSegment(V(20, -8, 0), V(11, -8, 0)), False)
sketch13.addConstraint(Sketcher.Constraint("Coincident", 0, 2, 1, 1))
sketch13.addConstraint(Sketcher.Constraint("Coincident", 1, 2, 2, 1))
sketch13.addConstraint(Sketcher.Constraint("Coincident", 2, 2, 3, 1))
sketch13.addConstraint(Sketcher.Constraint("Coincident", 3, 2, 0, 1))
sketch13.addConstraint(Sketcher.Constraint("Coincident", 4, 2, 5, 1))
sketch13.addConstraint(Sketcher.Constraint("Coincident", 5, 2, 6, 1))
sketch13.addConstraint(Sketcher.Constraint("Coincident", 6, 2, 7, 1))
sketch13.addConstraint(Sketcher.Constraint("Coincident", 7, 2, 8, 1))
sketch13.addConstraint(Sketcher.Constraint("Coincident", 8, 2, 9, 1))
sketch13.addConstraint(Sketcher.Constraint("Coincident", 9, 2, 4, 1))
sketch13.addConstraint(Sketcher.Constraint("Horizontal", 0))
sketch13.addConstraint(Sketcher.Constraint("Vertical", 1))
sketch13.addConstraint(Sketcher.Constraint("Horizontal", 2))
sketch13.addConstraint(Sketcher.Constraint("Vertical", 3))
sketch13.addConstraint(Sketcher.Constraint("Vertical", 4))
sketch13.addConstraint(Sketcher.Constraint("Horizontal", 5))
sketch13.addConstraint(Sketcher.Constraint("Vertical", 6))
sketch13.addConstraint(Sketcher.Constraint("Horizontal", 7))
sketch13.addConstraint(Sketcher.Constraint("Vertical", 8))
sketch13.addConstraint(Sketcher.Constraint("Horizontal", 9))
sketch13.addConstraint(Sketcher.Constraint("Symmetric", 0, 2, 1, 2, -1, 1))
sketch13.addConstraint(Sketcher.Constraint("DistanceX", 0, 2, 0, 1, Q("35 mm")))
sketch13.addConstraint(Sketcher.Constraint("DistanceX", 5, 1, 5, 2, Q("19 mm")))
sketch13.addConstraint(Sketcher.Constraint("DistanceX", 7, 2, 7, 1, Q("10 mm")))
sketch13.addConstraint(Sketcher.Constraint("DistanceY", 1, 1, 1, 2, Q("30 mm")))
sketch13.addConstraint(Sketcher.Constraint("DistanceY", 4, 2, 4, 1, Q("4 mm")))
sketch13.addConstraint(Sketcher.Constraint("DistanceY", 6, 1, 6, 2, Q("16 mm")))
sketch13.addConstraint(Sketcher.Constraint("DistanceX", -1, 1, 4, 2, Q("11 mm")))
sketch13.addConstraint(Sketcher.Constraint("DistanceY", 4, 2, -1, 1, Q("12 mm")))
pad6 = body.newObject("PartDesign::Pad", "Pad005")
pad6.Profile = sketch13
pad6.Length = 3
pad6.Reversed = True

# Sketch on YZ plane
sketch14 = body.newObject("Sketcher::SketchObject", "Sketch013")
sketch14.AttachmentSupport = (doc.getObject("YZ_Plane"), [""])
sketch14.MapMode = "FlatFace"
sketch14.AttachmentOffset = App.Placement(V(0, 0, 10), App.Rotation())
sketch14.addGeometry(Part.LineSegment(V(0, -15, 0), V(35, -15, 0)), False)
sketch14.addGeometry(Part.LineSegment(V(35, -15, 0), V(35, 15, 0)), False)
sketch14.addGeometry(Part.LineSegment(V(35, 15, 0), V(21, 15, 0)), False)
sketch14.addGeometry(Part.LineSegment(V(21, 15, 0), V(21, 0, 0)), False)
sketch14.addGeometry(Part.LineSegment(V(21, 0, 0), V(11, 0, 0)), False)
sketch14.addGeometry(Part.LineSegment(V(11, 0, 0), V(11, 15, 0)), False)
sketch14.addGeometry(Part.LineSegment(V(11, 15, 0), V(0, 15, 0)), False)
sketch14.addGeometry(Part.LineSegment(V(0, 15, 0), V(0, -15, 0)), False)
sketch14.addGeometry(Part.LineSegment(V(11, -8, 0), V(21, -8, 0)), False)
sketch14.addGeometry(Part.LineSegment(V(21, -8, 0), V(21, -12, 0)), False)
sketch14.addGeometry(Part.LineSegment(V(21, -12, 0), V(11, -12, 0)), False)
sketch14.addGeometry(Part.LineSegment(V(11, -12, 0), V(11, -8, 0)), False)
sketch14.addConstraint(Sketcher.Constraint("Coincident", 0, 2, 1, 1))
sketch14.addConstraint(Sketcher.Constraint("Coincident", 1, 2, 2, 1))
sketch14.addConstraint(Sketcher.Constraint("Coincident", 2, 2, 3, 1))
sketch14.addConstraint(Sketcher.Constraint("Coincident", 3, 2, 4, 1))
sketch14.addConstraint(Sketcher.Constraint("Coincident", 4, 2, 5, 1))
sketch14.addConstraint(Sketcher.Constraint("Coincident", 5, 2, 6, 1))
sketch14.addConstraint(Sketcher.Constraint("Coincident", 6, 2, 7, 1))
sketch14.addConstraint(Sketcher.Constraint("Coincident", 7, 2, 0, 1))
sketch14.addConstraint(Sketcher.Constraint("Coincident", 8, 2, 9, 1))
sketch14.addConstraint(Sketcher.Constraint("Coincident", 9, 2, 10, 1))
sketch14.addConstraint(Sketcher.Constraint("Coincident", 10, 2, 11, 1))
sketch14.addConstraint(Sketcher.Constraint("Coincident", 11, 2, 8, 1))
sketch14.addConstraint(Sketcher.Constraint("Horizontal", 0))
sketch14.addConstraint(Sketcher.Constraint("Vertical", 1))
sketch14.addConstraint(Sketcher.Constraint("Horizontal", 2))
sketch14.addConstraint(Sketcher.Constraint("Vertical", 3))
sketch14.addConstraint(Sketcher.Constraint("Horizontal", 4))
sketch14.addConstraint(Sketcher.Constraint("Vertical", 5))
sketch14.addConstraint(Sketcher.Constraint("Horizontal", 6))
sketch14.addConstraint(Sketcher.Constraint("Vertical", 7))
sketch14.addConstraint(Sketcher.Constraint("Horizontal", 8))
sketch14.addConstraint(Sketcher.Constraint("Vertical", 9))
sketch14.addConstraint(Sketcher.Constraint("Horizontal", 10))
sketch14.addConstraint(Sketcher.Constraint("Vertical", 11))
sketch14.addConstraint(Sketcher.Constraint("Symmetric", 6, 2, 7, 2, -1, 1))
sketch14.addConstraint(Sketcher.Constraint("PointOnObject", 3, 2, -1))
sketch14.addConstraint(Sketcher.Constraint("Horizontal", 2, 2, 5, 2))
sketch14.addConstraint(Sketcher.Constraint("Vertical", 3, 2, 8, 2))
sketch14.addConstraint(Sketcher.Constraint("Vertical", 5, 2, 10, 2))
sketch14.addConstraint(Sketcher.Constraint("DistanceX", 0, 1, 0, 2, Q("35 mm")))
sketch14.addConstraint(Sketcher.Constraint("DistanceX", 2, 2, 2, 1, Q("14 mm")))
sketch14.addConstraint(Sketcher.Constraint("DistanceX", 4, 2, 4, 1, Q("10 mm")))
sketch14.addConstraint(Sketcher.Constraint("DistanceY", 1, 1, 1, 2, Q("30 mm")))
sketch14.addConstraint(Sketcher.Constraint("DistanceY", 9, 2, 9, 1, Q("4 mm")))
sketch14.addConstraint(Sketcher.Constraint("DistanceY", 8, 2, -1, 1, Q("8 mm")))
pad7 = body.newObject("PartDesign::Pad", "Pad006")
pad7.Profile = sketch14
pad7.Length = 3

# Sketch on XZ plane
sketch15 = body.newObject("Sketcher::SketchObject", "Sketch014")
sketch15.AttachmentSupport = (doc.getObject("XZ_Plane"), [""])
sketch15.MapMode = "FlatFace"
sketch15.addGeometry(Part.LineSegment(V(-13, 15, 0), V(-13, -15, 0)), False)
sketch15.addGeometry(Part.LineSegment(V(-13, -15, 0), V(-10, -15, 0)), False)
sketch15.addGeometry(Part.LineSegment(V(-10, -15, 0), V(-10, 15, 0)), False)
sketch15.addGeometry(Part.LineSegment(V(-10, 15, 0), V(-13, 15, 0)), False)
sketch15.addConstraint(Sketcher.Constraint("Coincident", 0, 2, 1, 1))
sketch15.addConstraint(Sketcher.Constraint("Coincident", 1, 2, 2, 1))
sketch15.addConstraint(Sketcher.Constraint("Coincident", 2, 2, 3, 1))
sketch15.addConstraint(Sketcher.Constraint("Coincident", 3, 2, 0, 1))
sketch15.addConstraint(Sketcher.Constraint("Vertical", 0))
sketch15.addConstraint(Sketcher.Constraint("Horizontal", 1))
sketch15.addConstraint(Sketcher.Constraint("Vertical", 2))
sketch15.addConstraint(Sketcher.Constraint("Horizontal", 3))
sketch15.addConstraint(Sketcher.Constraint("DistanceX", 1, 1, 1, 2, Q("3 mm")))
sketch15.addConstraint(Sketcher.Constraint("DistanceY", 0, 2, 0, 1, Q("30 mm")))
sketch15.addConstraint(Sketcher.Constraint("DistanceX", 0, 2, -1, 1, Q("13 mm")))
sketch15.addConstraint(Sketcher.Constraint("DistanceY", 0, 2, -1, 1, Q("15 mm")))
pad8 = body.newObject("PartDesign::Pad", "Pad007")
pad8.Profile = sketch15
pad8.Length = 20

# Sketch on XZ plane
sketch16 = body.newObject("Sketcher::SketchObject", "Sketch015")
sketch16.AttachmentSupport = (doc.getObject("XZ_Plane"), [""])
sketch16.MapMode = "FlatFace"
sketch16.addGeometry(Part.LineSegment(V(10, 15, 0), V(10, -15, 0)), False)
sketch16.addGeometry(Part.LineSegment(V(10, -15, 0), V(13, -15, 0)), False)
sketch16.addGeometry(Part.LineSegment(V(13, -15, 0), V(13, 15, 0)), False)
sketch16.addGeometry(Part.LineSegment(V(13, 15, 0), V(10, 15, 0)), False)
sketch16.addConstraint(Sketcher.Constraint("Coincident", 0, 2, 1, 1))
sketch16.addConstraint(Sketcher.Constraint("Coincident", 1, 2, 2, 1))
sketch16.addConstraint(Sketcher.Constraint("Coincident", 2, 2, 3, 1))
sketch16.addConstraint(Sketcher.Constraint("Coincident", 3, 2, 0, 1))
sketch16.addConstraint(Sketcher.Constraint("Vertical", 0))
sketch16.addConstraint(Sketcher.Constraint("Horizontal", 1))
sketch16.addConstraint(Sketcher.Constraint("Vertical", 2))
sketch16.addConstraint(Sketcher.Constraint("Horizontal", 3))
sketch16.addConstraint(Sketcher.Constraint("DistanceX", 1, 1, 1, 2, Q("3 mm")))
sketch16.addConstraint(Sketcher.Constraint("DistanceY", 0, 2, 0, 1, Q("30 mm")))
sketch16.addConstraint(Sketcher.Constraint("DistanceX", -1, 1, 0, 2, Q("10 mm")))
sketch16.addConstraint(Sketcher.Constraint("DistanceY", 0, 2, -1, 1, Q("15 mm")))
pad9 = body.newObject("PartDesign::Pad", "Pad008")
pad9.Profile = sketch16
pad9.Length = 20

# Sketch on YZ plane
sketch17 = body.newObject("Sketcher::SketchObject", "Sketch016")
sketch17.AttachmentSupport = (doc.getObject("YZ_Plane"), [""])
sketch17.MapMode = "FlatFace"
sketch17.AttachmentOffset = App.Placement(V(0, 0, -13), App.Rotation())
sketch17.addGeometry(Part.Circle(V(-10, -10, 0), V(0, 0, 1), 1.8), False)
sketch17.addGeometry(Part.Circle(V(-10, 10, 0), V(0, 0, 1), 1.8), False)
sketch17.addConstraint(Sketcher.Constraint("Equal", 0, 1))
sketch17.addConstraint(Sketcher.Constraint("Symmetric", 0, 3, 1, 3, -1))
sketch17.addConstraint(Sketcher.Constraint("Diameter", 0, Q("3.5 mm")))
sketch17.addConstraint(Sketcher.Constraint("DistanceX", 0, 3, -1, 1, Q("10 mm")))
sketch17.addConstraint(Sketcher.Constraint("DistanceY", 0, 3, -1, 1, Q("10 mm")))
pocket7 = body.newObject("PartDesign::Pocket", "Pocket006")
pocket7.Profile = sketch17
pocket7.Type = "ThroughAll"
pocket7.Reversed = True
doc.recompute()

fillet = body.newObject("PartDesign::Fillet", "Fillet")
fillet.Base = (pocket7, edges_at(pocket7, [
    (-13, 7.5, 15),
    (-13, 35, 0),
    (13, 35, 0),
    (13, 28, 15),
    (13, -4.5, 15),
    (-13, -20, 0),
    (-11.5, -20, 15),
    (13, -20, 0),
    (11.5, -20, 15),
    (0, 35, 15),
]))
fillet.Radius = 2
doc.recompute()

fillet2 = body.newObject("PartDesign::Fillet", "Fillet001")
fillet2.Base = (fillet, edges_at(fillet, [
    (-2.5, 20.5, 15),
    (2.5, 25.5, 15),
    (-2.5, 25, 3.416),
    (-13, 20.5, -12),
    (-13, 15.5, -8),
    (-13, 25, 4),
    (13, 16, 0),
    (13, 16, -8),
    (13, 16, -12),
]))
fillet2.Radius = 2

doc.recompute()
